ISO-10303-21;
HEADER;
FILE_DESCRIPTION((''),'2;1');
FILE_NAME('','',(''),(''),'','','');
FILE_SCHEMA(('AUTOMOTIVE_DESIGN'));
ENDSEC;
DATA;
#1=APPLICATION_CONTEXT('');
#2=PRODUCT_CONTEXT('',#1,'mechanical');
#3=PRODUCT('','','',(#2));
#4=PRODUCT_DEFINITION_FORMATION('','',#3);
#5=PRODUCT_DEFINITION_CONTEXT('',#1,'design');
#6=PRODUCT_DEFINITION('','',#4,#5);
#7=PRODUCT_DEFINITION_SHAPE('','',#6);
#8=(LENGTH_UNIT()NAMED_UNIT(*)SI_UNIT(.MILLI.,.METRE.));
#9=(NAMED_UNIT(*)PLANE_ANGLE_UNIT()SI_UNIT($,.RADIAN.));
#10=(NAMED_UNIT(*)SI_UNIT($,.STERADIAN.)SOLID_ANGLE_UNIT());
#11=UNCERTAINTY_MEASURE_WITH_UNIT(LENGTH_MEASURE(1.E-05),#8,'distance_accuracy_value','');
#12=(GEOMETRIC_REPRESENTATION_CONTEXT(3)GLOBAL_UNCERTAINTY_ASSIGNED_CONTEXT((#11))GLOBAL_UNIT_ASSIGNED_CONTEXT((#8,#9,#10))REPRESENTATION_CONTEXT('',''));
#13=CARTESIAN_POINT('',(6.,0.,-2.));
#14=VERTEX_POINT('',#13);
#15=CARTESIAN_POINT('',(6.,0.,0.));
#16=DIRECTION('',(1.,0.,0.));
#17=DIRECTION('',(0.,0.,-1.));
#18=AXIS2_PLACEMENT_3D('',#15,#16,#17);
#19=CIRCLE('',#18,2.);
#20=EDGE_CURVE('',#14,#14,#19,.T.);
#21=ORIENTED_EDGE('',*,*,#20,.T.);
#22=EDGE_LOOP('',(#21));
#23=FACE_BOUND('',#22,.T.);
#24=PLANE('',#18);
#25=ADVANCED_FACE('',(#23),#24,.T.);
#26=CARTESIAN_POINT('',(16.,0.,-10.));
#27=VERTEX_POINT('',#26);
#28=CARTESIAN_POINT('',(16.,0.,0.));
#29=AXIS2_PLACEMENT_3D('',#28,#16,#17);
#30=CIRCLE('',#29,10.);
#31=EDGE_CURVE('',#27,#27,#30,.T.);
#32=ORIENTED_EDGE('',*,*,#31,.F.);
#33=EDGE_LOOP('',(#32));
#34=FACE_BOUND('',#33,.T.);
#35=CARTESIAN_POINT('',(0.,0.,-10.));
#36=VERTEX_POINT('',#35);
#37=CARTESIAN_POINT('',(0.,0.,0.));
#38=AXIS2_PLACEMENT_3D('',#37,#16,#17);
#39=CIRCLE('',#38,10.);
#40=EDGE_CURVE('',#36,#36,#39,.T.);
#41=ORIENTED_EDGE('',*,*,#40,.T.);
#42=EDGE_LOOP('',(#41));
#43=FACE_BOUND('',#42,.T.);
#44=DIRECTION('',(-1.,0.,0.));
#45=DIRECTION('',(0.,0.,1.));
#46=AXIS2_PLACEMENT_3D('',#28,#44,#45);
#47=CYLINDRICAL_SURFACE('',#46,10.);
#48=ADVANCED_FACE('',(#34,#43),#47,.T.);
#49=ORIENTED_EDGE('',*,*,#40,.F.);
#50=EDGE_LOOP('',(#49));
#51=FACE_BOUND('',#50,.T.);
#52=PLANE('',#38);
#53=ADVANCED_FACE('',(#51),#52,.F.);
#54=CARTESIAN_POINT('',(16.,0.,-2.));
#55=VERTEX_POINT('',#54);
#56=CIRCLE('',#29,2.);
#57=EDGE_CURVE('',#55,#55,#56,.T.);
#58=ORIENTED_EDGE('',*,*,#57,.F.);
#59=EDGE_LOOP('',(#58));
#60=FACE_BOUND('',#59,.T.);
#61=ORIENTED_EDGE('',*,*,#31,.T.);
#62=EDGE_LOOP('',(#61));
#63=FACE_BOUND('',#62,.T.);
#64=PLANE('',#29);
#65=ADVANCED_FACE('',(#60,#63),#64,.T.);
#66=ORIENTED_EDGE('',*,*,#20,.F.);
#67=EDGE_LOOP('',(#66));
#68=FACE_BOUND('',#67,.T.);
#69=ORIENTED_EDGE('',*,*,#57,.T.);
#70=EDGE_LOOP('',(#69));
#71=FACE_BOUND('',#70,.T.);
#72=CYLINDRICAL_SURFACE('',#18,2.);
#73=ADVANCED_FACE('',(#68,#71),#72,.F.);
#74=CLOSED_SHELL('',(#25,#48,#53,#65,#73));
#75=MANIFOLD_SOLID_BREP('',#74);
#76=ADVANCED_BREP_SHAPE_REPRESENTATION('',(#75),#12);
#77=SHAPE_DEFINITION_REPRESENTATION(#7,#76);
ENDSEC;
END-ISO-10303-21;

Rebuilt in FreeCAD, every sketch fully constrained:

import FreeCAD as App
import Part
import Sketcher

V = App.Vector

doc = App.newDocument("Part")
params = doc.addObject("Spreadsheet::Sheet", "Params")
for row, (alias, value) in enumerate([
    ("sketch1_diameter", "20 mm"),
    ("pad1_length", "16 mm"),
    ("sketch2_diameter", "4 mm"),
    ("pocket1_length", "10 mm"),
], start=1):
    params.set(f"A{row}", alias)
    params.set(f"B{row}", "=" + value)
    params.setAlias(f"B{row}", alias)

body = doc.addObject("PartDesign::Body", "Body")

# Sketch on YZ plane
sketch1 = body.newObject("Sketcher::SketchObject", "Sketch")
sketch1.AttachmentSupport = (doc.getObject("YZ_Plane"), [""])
sketch1.MapMode = "FlatFace"
sketch1.addGeometry(Part.Circle(V(0, 0, 0), V(0, 0, 1), 10), False)
sketch1.addConstraint(Sketcher.Constraint("Coincident", 0, 3, -1, 1))
sketch1.addConstraint(Sketcher.Constraint("Diameter", 0, 20.0))
sketch1.setExpression("Constraints[1]", "Params.sketch1_diameter")
pad1 = body.newObject("PartDesign::Pad", "Pad")
pad1.Profile = sketch1
pad1.setExpression("Length", "Params.pad1_length")

# Sketch on YZ plane
sketch2 = body.newObject("Sketcher::SketchObject", "Sketch001")
sketch2.AttachmentSupport = (doc.getObject("YZ_Plane"), [""])
sketch2.MapMode = "FlatFace"
sketch2.AttachmentOffset = App.Placement(V(0, 0, 16), App.Rotation())
sketch2.addGeometry(Part.Circle(V(0, 0, 0), V(0, 0, 1), 2), False)
sketch2.addConstraint(Sketcher.Constraint("Coincident", 0, 3, -1, 1))
sketch2.addConstraint(Sketcher.Constraint("Diameter", 0, 4.0))
sketch2.setExpression("Constraints[1]", "Params.sketch2_diameter")
pocket1 = body.newObject("PartDesign::Pocket", "Pocket")
pocket1.Profile = sketch2
pocket1.setExpression("Length", "Params.pocket1_length")

doc.recompute()
